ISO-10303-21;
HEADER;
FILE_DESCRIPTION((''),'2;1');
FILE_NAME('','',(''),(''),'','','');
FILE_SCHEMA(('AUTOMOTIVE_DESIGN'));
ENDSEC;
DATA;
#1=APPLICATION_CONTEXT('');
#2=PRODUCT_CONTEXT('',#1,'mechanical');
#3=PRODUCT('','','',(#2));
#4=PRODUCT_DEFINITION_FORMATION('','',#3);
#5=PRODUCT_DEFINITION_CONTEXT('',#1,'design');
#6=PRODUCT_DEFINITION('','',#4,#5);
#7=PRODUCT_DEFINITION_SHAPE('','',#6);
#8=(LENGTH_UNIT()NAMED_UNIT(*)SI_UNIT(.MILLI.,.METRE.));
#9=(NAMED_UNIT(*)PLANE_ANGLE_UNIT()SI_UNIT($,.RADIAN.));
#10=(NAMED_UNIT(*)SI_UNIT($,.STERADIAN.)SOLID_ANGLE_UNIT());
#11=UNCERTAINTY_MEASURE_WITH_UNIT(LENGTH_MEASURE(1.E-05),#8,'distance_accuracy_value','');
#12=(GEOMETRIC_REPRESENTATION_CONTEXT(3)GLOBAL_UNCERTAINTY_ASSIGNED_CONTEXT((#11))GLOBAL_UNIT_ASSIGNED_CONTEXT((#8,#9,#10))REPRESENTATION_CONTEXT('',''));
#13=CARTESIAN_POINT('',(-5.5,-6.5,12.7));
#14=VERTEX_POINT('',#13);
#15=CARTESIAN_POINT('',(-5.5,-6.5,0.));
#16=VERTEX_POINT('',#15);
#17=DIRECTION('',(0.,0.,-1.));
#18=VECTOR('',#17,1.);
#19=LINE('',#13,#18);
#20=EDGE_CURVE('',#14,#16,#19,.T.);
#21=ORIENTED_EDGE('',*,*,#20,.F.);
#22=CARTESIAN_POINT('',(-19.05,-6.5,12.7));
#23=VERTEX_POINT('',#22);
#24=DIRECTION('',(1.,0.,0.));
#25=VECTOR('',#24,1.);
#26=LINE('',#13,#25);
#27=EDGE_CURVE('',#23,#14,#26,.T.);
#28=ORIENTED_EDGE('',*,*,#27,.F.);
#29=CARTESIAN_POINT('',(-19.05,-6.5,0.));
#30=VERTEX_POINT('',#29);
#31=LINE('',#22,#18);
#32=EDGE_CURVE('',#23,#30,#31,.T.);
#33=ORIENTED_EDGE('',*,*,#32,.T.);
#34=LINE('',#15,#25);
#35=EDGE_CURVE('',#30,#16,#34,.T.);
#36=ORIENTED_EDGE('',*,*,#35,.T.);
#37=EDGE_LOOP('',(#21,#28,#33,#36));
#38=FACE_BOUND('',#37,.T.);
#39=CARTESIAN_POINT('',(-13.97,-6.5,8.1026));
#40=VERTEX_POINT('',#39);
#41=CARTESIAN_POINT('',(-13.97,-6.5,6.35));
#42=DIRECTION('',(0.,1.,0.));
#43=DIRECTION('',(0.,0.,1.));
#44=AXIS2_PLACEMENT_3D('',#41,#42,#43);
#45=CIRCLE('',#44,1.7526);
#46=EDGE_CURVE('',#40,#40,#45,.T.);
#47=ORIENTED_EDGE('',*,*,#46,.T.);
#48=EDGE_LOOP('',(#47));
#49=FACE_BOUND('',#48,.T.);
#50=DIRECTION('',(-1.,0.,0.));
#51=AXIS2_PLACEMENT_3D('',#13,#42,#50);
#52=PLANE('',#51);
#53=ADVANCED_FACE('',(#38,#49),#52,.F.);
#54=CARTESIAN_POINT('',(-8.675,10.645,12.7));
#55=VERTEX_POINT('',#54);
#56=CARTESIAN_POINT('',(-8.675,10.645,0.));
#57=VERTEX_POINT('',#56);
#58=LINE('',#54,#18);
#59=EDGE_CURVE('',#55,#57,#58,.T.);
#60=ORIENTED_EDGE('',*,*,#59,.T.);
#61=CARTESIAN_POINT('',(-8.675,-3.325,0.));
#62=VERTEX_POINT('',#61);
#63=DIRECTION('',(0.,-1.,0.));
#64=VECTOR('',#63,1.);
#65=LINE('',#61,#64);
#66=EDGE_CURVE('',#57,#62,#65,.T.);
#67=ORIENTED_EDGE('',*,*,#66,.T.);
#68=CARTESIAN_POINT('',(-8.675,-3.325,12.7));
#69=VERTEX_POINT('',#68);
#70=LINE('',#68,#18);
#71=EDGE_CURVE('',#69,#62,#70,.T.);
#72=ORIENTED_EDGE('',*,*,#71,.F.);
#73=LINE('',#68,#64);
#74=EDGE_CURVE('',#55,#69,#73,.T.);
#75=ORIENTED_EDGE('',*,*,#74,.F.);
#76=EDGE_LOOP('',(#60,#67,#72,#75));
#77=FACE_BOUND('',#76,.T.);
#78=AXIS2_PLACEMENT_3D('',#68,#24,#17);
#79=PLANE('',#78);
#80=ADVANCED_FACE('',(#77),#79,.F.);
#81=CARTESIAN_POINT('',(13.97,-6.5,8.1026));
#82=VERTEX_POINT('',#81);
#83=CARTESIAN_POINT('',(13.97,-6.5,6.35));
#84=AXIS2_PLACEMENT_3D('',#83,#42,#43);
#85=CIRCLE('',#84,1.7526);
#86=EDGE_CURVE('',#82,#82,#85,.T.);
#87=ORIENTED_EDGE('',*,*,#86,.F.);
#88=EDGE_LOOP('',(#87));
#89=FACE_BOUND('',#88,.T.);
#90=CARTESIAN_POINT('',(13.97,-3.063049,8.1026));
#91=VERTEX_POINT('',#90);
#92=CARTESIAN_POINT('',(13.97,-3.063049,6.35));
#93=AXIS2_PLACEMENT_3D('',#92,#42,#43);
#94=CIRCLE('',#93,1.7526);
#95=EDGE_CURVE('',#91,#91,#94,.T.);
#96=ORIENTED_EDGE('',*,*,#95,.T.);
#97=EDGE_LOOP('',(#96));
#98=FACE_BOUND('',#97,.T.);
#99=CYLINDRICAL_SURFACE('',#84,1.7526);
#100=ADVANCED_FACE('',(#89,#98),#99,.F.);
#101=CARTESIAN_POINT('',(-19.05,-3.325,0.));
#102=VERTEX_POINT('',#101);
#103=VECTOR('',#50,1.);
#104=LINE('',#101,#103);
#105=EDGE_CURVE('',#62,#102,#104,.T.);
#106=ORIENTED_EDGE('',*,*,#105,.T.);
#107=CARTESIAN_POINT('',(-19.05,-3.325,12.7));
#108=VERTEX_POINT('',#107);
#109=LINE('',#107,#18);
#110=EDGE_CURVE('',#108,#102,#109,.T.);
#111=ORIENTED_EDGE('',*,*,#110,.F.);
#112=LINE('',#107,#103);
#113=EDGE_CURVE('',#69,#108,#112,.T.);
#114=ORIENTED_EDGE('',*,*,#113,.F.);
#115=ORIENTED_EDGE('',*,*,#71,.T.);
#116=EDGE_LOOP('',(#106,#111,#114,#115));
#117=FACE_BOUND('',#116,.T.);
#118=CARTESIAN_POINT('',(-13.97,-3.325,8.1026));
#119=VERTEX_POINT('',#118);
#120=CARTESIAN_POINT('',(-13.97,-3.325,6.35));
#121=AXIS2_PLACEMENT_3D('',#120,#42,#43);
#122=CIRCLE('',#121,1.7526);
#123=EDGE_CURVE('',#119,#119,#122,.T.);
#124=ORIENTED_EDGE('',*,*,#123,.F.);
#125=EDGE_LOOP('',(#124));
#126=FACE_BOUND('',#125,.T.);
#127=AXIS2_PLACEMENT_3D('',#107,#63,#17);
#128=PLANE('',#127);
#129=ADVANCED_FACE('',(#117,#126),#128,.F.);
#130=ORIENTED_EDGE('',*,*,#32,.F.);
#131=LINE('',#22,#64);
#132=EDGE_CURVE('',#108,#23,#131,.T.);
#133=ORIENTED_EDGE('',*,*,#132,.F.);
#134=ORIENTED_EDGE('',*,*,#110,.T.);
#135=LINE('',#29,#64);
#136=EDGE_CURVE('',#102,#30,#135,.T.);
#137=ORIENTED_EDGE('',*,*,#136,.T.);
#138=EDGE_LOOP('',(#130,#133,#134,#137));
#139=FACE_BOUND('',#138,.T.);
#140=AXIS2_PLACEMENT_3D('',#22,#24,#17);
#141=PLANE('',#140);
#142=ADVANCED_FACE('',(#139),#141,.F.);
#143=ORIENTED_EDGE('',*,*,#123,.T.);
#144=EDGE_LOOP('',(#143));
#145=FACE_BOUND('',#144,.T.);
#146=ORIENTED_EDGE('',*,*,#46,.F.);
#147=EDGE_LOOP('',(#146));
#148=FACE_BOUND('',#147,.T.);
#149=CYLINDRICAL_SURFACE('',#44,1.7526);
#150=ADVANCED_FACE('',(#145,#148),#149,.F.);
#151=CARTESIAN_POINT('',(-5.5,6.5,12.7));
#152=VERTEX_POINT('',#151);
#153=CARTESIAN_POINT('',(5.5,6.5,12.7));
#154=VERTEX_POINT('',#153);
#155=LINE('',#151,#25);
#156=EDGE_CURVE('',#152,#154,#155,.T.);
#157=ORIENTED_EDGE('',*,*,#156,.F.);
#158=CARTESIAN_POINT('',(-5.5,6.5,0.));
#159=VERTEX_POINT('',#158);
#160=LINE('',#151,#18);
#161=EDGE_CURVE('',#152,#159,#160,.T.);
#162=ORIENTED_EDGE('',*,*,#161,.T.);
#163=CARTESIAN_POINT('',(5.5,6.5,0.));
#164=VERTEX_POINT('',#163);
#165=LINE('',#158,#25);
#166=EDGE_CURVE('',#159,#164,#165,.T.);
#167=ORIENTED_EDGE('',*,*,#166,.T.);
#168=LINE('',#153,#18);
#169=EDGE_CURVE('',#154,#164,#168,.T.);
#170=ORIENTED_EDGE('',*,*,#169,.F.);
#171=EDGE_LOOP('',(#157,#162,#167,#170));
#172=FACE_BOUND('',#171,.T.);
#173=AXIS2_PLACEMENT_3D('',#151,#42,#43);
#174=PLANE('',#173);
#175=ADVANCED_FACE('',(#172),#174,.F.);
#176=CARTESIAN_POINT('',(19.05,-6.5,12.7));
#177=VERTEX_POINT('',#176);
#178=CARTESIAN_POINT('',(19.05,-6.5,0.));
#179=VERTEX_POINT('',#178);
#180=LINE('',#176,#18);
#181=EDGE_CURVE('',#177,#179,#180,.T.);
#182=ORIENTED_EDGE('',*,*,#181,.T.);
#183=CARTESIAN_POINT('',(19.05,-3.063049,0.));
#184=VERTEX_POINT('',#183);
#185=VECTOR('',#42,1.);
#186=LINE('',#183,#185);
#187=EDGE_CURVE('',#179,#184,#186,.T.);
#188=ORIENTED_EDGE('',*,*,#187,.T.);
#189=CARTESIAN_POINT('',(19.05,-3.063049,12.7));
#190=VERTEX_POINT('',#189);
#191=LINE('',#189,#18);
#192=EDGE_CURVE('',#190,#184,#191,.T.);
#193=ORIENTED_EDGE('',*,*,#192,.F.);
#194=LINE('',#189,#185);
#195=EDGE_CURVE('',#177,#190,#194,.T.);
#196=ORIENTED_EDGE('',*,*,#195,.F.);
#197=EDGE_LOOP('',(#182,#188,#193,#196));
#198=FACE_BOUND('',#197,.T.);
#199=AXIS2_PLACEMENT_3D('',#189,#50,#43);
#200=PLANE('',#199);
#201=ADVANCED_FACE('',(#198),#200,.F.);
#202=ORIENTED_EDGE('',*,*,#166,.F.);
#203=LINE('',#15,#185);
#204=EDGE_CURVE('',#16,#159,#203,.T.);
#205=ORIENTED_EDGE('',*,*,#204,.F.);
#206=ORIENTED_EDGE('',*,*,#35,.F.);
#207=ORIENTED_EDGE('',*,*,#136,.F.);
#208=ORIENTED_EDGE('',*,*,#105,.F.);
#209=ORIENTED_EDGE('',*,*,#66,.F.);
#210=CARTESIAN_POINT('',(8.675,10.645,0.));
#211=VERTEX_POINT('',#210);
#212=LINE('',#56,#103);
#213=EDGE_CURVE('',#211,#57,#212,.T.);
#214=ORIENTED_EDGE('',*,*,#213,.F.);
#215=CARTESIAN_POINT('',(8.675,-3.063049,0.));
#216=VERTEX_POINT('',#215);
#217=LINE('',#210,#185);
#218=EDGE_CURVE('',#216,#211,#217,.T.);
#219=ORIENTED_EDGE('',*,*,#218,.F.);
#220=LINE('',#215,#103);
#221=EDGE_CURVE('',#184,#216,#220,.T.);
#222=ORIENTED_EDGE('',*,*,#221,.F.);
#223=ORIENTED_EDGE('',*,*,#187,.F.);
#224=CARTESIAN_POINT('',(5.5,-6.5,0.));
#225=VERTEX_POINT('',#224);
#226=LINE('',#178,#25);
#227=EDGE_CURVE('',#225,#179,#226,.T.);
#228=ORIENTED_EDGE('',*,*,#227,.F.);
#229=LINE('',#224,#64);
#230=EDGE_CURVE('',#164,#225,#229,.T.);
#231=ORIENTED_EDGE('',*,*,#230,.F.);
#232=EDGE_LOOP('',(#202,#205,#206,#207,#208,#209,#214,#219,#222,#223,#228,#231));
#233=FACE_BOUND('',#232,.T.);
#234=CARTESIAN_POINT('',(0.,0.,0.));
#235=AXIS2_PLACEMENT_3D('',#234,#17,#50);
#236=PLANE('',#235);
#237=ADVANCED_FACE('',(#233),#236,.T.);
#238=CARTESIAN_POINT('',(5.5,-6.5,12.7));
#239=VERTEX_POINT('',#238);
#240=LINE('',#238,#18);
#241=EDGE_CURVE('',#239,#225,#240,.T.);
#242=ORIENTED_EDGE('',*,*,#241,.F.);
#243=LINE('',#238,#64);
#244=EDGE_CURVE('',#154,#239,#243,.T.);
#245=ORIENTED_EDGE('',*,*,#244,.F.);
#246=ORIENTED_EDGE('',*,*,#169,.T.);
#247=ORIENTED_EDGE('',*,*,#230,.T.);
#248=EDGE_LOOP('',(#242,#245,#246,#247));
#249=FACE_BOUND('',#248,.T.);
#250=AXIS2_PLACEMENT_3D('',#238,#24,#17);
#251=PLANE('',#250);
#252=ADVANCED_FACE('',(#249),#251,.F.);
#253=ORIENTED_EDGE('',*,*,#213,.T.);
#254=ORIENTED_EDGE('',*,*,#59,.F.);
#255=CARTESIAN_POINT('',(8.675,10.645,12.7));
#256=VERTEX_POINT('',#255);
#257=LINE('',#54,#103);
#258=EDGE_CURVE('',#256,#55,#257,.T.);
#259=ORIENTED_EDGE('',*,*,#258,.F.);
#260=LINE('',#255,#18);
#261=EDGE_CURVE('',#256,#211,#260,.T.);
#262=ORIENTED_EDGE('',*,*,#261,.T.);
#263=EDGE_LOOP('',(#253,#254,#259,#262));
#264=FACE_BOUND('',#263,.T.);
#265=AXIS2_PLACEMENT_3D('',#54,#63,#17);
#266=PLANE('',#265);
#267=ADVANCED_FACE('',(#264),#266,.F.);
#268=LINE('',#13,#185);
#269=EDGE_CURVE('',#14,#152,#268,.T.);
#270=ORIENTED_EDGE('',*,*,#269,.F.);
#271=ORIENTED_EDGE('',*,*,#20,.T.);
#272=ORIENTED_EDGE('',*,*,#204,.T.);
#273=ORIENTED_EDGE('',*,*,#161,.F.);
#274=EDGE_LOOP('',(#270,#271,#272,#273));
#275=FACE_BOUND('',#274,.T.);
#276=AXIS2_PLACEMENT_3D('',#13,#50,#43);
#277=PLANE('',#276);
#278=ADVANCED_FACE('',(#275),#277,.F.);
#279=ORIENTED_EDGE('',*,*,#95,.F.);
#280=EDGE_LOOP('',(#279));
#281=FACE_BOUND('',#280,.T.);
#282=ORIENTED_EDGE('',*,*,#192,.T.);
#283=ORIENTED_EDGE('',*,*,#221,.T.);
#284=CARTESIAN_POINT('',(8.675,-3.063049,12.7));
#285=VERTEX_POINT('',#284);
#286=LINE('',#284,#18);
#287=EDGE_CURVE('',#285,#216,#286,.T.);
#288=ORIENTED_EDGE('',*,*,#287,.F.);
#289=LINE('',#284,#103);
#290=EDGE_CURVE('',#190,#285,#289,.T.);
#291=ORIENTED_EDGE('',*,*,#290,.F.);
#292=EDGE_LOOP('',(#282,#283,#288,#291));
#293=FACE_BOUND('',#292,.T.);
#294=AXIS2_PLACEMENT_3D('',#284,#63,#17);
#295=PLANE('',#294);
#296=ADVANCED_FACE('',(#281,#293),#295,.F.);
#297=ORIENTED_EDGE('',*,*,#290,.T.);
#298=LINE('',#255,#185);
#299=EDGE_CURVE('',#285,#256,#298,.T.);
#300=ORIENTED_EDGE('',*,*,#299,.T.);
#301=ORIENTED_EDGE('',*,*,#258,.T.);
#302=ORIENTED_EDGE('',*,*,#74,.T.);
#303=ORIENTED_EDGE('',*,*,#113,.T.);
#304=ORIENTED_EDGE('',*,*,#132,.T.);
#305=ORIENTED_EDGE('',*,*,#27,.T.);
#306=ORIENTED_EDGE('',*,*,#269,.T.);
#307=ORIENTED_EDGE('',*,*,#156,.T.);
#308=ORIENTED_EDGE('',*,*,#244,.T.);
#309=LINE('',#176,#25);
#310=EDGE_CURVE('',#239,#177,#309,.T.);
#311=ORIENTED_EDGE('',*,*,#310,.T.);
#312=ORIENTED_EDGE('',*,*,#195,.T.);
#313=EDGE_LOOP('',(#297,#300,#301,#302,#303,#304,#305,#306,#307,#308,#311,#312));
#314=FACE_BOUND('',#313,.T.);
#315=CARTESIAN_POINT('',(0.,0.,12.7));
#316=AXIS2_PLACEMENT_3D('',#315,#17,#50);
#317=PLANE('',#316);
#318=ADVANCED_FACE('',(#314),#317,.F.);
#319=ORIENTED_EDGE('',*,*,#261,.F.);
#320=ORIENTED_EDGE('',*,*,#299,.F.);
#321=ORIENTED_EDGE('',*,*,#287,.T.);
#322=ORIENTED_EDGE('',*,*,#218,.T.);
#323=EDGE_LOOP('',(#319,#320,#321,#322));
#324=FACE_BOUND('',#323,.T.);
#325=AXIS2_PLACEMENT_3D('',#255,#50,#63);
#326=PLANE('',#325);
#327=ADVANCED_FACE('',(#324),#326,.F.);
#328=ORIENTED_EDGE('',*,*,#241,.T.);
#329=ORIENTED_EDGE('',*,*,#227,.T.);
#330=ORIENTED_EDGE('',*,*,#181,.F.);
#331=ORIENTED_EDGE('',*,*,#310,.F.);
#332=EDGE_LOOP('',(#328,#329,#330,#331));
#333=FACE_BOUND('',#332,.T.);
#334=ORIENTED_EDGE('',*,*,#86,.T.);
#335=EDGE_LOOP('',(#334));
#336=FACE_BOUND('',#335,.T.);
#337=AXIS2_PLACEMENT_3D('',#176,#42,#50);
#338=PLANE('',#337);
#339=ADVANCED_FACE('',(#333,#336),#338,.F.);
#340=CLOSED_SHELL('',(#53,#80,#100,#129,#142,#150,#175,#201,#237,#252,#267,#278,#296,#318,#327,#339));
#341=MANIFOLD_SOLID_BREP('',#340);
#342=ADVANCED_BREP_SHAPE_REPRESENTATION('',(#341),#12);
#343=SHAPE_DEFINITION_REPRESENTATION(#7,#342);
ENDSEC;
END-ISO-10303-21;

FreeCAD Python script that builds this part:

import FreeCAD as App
import Part
import Sketcher
Q = App.Units.Quantity


def add_polygon(sketch, points):
    """Adds a closed chain of lines whose ends are joined by coincident constraints."""
    first, n = sketch.GeometryCount, len(points)
    for a, b in zip(points, points[1:] + points[:1]):
        sketch.addGeometry(Part.LineSegment(App.Vector(*a, 0), App.Vector(*b, 0)), False)
    for i in range(n):
        sketch.addConstraint(Sketcher.Constraint("Coincident", first + i, 2, first + (i + 1) % n, 1))

doc = App.newDocument("Part")
body = doc.addObject("PartDesign::Body", "Body")

sketch1 = body.newObject("Sketcher::SketchObject", "Sketch")
sketch1.AttachmentSupport = (doc.getObject("XY_Plane"), [""])
sketch1.MapMode = "FlatFace"
add_polygon(sketch1, [(-19.1, -6.5), (-5.5, -6.5), (-5.5, 6.5), (5.5, 6.5), (5.5, -6.5), (19.1, -6.5), (19.1, -3.1), (8.7, -3.1), (8.7, 10.6), (-8.7, 10.6), (-8.7, -3.3), (-19.1, -3.3)])
sketch1.addConstraint([
    Sketcher.Constraint("Horizontal", 0),
    Sketcher.Constraint("Vertical", 1),
    Sketcher.Constraint("Horizontal", 2),
    Sketcher.Constraint("Vertical", 3),
    Sketcher.Constraint("Horizontal", 4),
    Sketcher.Constraint("Vertical", 5),
    Sketcher.Constraint("Horizontal", 6),
    Sketcher.Constraint("Vertical", 7),
    Sketcher.Constraint("Horizontal", 8),
    Sketcher.Constraint("Vertical", 9),
    Sketcher.Constraint("Horizontal", 10),
    Sketcher.Constraint("Vertical", 11),
    Sketcher.Constraint("Symmetric", 0, 2, 2, 2, -1, 1),
    Sketcher.Constraint("Symmetric", 4, 2, 11, 2, -2),
    Sketcher.Constraint("Equal", 6, 10),
    Sketcher.Constraint("DistanceY", 9, 2, 9, 1, Q("0.55 in")),
    Sketcher.Constraint("DistanceY", 11, 2, 11, 1, Q("0.125 in")),
    Sketcher.Constraint("DistanceX", -1, 1, 4, 2, Q("0.75 in")),
    Sketcher.Constraint("DistanceX", 3, 2, 6, 2, Q("0.125 in")),
    Sketcher.Constraint("DistanceX", 0, 1, 0, 2, Q("13.55 mm")),
    Sketcher.Constraint("DistanceY", 1, 1, 1, 2, Q("13 mm")),
    Sketcher.Constraint("DistanceY", 5, 1, 5, 2, Q("3.436951 mm")),
])
pad1 = body.newObject("PartDesign::Pad", "Pad")
pad1.Profile = sketch1
pad1.Length = Q("0.5 in")

sketch2 = body.newObject("Sketcher::SketchObject", "Sketch001")
sketch2.AttachmentSupport = (doc.getObject("XZ_Plane"), [""])
sketch2.MapMode = "FlatFace"
sketch2.AttachmentOffset = App.Placement(App.Vector(0, 0, 3.325), App.Rotation())
sketch2.addGeometry(Part.Circle(App.Vector(-14, 6.3, 0), App.Vector(0, 0, 1), 1.8), False)
sketch2.addConstraint([
    Sketcher.Constraint("Diameter", 0, Q("0.138 in")),
    Sketcher.Constraint("DistanceX", 0, 3, -1, 1, Q("0.55 in")),
    Sketcher.Constraint("DistanceY", -1, 1, 0, 3, Q("0.25 in")),
])
pocket1 = body.newObject("PartDesign::Pocket", "Pocket")
pocket1.Profile = sketch2
pocket1.Type = "ThroughAll"
pocket1.Reversed = True

sketch3 = body.newObject("Sketcher::SketchObject", "Sketch002")
sketch3.AttachmentSupport = (doc.getObject("XZ_Plane"), [""])
sketch3.MapMode = "FlatFace"
sketch3.AttachmentOffset = App.Placement(App.Vector(0, 0, 3.063049), App.Rotation())
sketch3.addGeometry(Part.Circle(App.Vector(14, 6.3, 0), App.Vector(0, 0, 1), 1.8), False)
sketch3.addConstraint([
    Sketcher.Constraint("Diameter", 0, Q("0.138 in")),
    Sketcher.Constraint("DistanceX", -1, 1, 0, 3, Q("0.55 in")),
    Sketcher.Constraint("DistanceY", -1, 1, 0, 3, Q("0.25 in")),
])
pocket2 = body.newObject("PartDesign::Pocket", "Pocket001")
pocket2.Profile = sketch3
pocket2.Type = "ThroughAll"
pocket2.Reversed = True

doc.recompute()
